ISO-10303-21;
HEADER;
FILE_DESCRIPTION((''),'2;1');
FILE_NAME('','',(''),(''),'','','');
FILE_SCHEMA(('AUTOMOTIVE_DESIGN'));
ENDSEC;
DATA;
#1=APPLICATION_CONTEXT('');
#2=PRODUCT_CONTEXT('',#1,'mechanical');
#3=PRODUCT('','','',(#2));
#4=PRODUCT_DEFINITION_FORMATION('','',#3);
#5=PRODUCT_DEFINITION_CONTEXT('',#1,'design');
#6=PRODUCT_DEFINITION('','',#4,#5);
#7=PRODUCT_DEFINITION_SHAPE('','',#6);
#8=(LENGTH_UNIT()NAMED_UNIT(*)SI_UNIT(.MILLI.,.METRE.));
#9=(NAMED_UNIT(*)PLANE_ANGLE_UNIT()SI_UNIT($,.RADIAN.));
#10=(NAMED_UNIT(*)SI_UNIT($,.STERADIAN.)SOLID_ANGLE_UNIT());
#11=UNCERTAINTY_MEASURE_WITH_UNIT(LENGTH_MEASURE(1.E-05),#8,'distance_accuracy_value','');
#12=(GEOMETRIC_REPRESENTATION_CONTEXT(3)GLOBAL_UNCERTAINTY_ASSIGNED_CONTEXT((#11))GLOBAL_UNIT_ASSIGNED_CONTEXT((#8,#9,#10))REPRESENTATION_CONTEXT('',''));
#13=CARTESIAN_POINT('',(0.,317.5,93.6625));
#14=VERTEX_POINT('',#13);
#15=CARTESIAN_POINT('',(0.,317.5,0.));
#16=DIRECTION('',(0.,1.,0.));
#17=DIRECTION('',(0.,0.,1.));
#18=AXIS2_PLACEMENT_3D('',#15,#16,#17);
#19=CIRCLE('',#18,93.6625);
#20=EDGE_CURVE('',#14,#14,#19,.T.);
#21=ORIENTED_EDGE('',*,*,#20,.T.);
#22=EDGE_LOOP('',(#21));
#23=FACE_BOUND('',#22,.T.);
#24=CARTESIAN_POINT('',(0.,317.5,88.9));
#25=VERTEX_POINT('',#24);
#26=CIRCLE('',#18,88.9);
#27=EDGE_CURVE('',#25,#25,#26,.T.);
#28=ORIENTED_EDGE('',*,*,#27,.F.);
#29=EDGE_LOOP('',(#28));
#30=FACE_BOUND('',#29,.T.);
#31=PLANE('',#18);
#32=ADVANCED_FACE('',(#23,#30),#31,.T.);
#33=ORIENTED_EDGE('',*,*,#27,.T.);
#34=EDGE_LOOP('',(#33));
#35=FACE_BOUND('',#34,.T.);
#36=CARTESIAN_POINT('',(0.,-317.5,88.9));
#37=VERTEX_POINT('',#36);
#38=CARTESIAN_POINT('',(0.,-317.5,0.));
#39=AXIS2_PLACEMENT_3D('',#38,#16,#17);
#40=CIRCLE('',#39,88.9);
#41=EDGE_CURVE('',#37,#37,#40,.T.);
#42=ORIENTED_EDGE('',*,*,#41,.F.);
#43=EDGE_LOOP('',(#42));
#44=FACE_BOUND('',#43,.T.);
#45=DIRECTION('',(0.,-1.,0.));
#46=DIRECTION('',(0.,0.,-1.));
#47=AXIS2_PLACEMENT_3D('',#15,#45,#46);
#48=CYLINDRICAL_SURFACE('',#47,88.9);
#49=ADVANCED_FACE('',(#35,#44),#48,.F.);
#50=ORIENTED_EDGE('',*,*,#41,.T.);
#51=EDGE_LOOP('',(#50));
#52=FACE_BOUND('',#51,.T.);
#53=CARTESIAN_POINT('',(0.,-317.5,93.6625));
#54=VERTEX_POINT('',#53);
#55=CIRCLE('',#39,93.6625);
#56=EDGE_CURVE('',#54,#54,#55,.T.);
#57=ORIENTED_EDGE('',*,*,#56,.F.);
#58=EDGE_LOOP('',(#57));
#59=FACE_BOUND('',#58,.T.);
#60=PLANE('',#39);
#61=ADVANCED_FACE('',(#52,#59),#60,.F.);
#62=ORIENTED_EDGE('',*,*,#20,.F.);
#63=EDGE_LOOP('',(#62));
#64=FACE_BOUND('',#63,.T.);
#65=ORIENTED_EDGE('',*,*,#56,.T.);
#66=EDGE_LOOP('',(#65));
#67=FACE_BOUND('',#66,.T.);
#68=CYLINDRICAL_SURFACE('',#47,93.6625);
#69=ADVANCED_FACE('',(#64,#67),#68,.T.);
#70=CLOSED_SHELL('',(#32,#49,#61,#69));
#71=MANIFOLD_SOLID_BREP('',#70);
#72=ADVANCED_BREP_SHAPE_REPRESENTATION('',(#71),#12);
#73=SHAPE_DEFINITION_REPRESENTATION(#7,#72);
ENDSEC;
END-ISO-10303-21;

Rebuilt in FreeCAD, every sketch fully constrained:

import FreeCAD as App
import Part
import Sketcher
Q = App.Units.Quantity

doc = App.newDocument("Part")
body = doc.addObject("PartDesign::Body", "Body")

# Sketch on XZ plane
sketch1 = body.newObject("Sketcher::SketchObject", "Sketch")
sketch1.AttachmentSupport = (doc.getObject("XZ_Plane"), [""])
sketch1.MapMode = "FlatFace"
sketch1.addGeometry([
    Part.Circle(App.Vector(0, 0, 0), App.Vector(0, 0, 1), 94),
    Part.Circle(App.Vector(0, 0, 0), App.Vector(0, 0, 1), 89),
], False)
sketch1.addConstraint([
    Sketcher.Constraint("Coincident", 0, 3, -1, 1),
    Sketcher.Constraint("Coincident", 1, 3, -1, 1),
    Sketcher.Constraint("Diameter", 1, Q("7 in")),
    Sketcher.Constraint("Diameter", 0, Q("7.375 in")),
])
pad1 = body.newObject("PartDesign::Pad", "Pad")
pad1.Profile = sketch1
pad1.Length = Q("25 in")
pad1.Midplane = True

doc.recompute()
